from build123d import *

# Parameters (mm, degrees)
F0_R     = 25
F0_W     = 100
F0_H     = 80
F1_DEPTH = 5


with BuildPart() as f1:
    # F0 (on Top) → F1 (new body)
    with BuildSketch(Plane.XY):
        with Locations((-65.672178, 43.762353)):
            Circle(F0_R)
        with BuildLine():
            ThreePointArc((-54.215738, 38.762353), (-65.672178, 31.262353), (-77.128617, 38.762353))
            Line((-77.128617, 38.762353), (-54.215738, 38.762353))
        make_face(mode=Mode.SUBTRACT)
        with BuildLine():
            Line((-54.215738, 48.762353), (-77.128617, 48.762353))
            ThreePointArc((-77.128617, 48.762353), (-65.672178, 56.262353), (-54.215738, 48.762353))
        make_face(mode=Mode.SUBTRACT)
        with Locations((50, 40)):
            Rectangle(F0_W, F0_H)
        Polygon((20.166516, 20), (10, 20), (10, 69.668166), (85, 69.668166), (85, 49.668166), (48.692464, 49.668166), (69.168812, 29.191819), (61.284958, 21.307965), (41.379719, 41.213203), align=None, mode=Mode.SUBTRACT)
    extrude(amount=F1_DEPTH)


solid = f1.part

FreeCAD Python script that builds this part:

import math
import FreeCAD as App
import Part
import Sketcher

V = App.Vector
Q = App.Units.Quantity


def add_polygon(sketch, points):
    """Adds a closed chain of lines whose ends are joined by coincident constraints."""
    first, n = sketch.GeometryCount, len(points)
    for a, b in zip(points, points[1:] + points[:1]):
        sketch.addGeometry(Part.LineSegment(App.Vector(*a, 0), App.Vector(*b, 0)), False)
    for i in range(n):
        sketch.addConstraint(Sketcher.Constraint("Coincident", first + i, 2, first + (i + 1) % n, 1))

doc = App.newDocument("Part")
body = doc.addObject("PartDesign::Body", "Body")
body.AllowCompound = True

# Sketch on XY plane
sketch1 = body.newObject("Sketcher::SketchObject", "Sketch")
sketch1.AttachmentSupport = (doc.getObject("XY_Plane"), [""])
sketch1.MapMode = "FlatFace"
sketch1.addGeometry(Part.Circle(V(-65.672178, 43.762353, 0), V(0, 0, 1), 25), False)  # 0
sketch1.addGeometry(Part.LineSegment(V(-77.128617, 38.762353, 0), V(-54.215738, 38.762353, 0)), False)  # 1
sketch1.addGeometry(Part.ArcOfCircle(Part.Circle(V(-65.672178, 43.762353, 0), V(0, 0, 1), 12.5), math.radians(-156.42182), math.radians(-23.57818)), False)  # 2
sketch1.addGeometry(Part.ArcOfCircle(Part.Circle(V(-65.672178, 43.762353, 0), V(0, 0, 1), 12.5), math.radians(23.57818), math.radians(156.42182)), False)  # 3
sketch1.addGeometry(Part.LineSegment(V(-54.215738, 48.762353, 0), V(-77.128617, 48.762353, 0)), False)  # 4
add_polygon(sketch1, [(0, 80), (0, 0), (100, 0), (100, 80)])  # lines 5-8
add_polygon(sketch1, [(41.379719, 41.213203), (20.166516, 20), (10, 20), (10, 69.668166), (85, 69.668166), (85, 49.668166), (48.692464, 49.668166), (69.168812, 29.191819), (61.284958, 21.307965)])  # lines 9-17
sketch1.addConstraint(Sketcher.Constraint("Coincident", 1, 1, 2, 1))
sketch1.addConstraint(Sketcher.Constraint("Coincident", 2, 2, 1, 2))
sketch1.addConstraint(Sketcher.Constraint("Coincident", 3, 1, 4, 1))
sketch1.addConstraint(Sketcher.Constraint("Coincident", 4, 2, 3, 2))
sketch1.addConstraint(Sketcher.Constraint("Horizontal", 1))
sketch1.addConstraint(Sketcher.Constraint("Horizontal", 4))
sketch1.addConstraint(Sketcher.Constraint("Vertical", 5))
sketch1.addConstraint(Sketcher.Constraint("Horizontal", 6))
sketch1.addConstraint(Sketcher.Constraint("Vertical", 7))
sketch1.addConstraint(Sketcher.Constraint("Horizontal", 8))
sketch1.addConstraint(Sketcher.Constraint("Horizontal", 10))
sketch1.addConstraint(Sketcher.Constraint("Vertical", 11))
sketch1.addConstraint(Sketcher.Constraint("Horizontal", 12))
sketch1.addConstraint(Sketcher.Constraint("Vertical", 13))
sketch1.addConstraint(Sketcher.Constraint("Horizontal", 14))
sketch1.addConstraint(Sketcher.Constraint("Coincident", 5, 2, -1, 1))
sketch1.addConstraint(Sketcher.Constraint("Coincident", 2, 3, 0, 3))
sketch1.addConstraint(Sketcher.Constraint("Coincident", 3, 3, 0, 3))
sketch1.addConstraint(Sketcher.Constraint("Equal", 2, 3))
sketch1.addConstraint(Sketcher.Constraint("Perpendicular", 9, 15))
sketch1.addConstraint(Sketcher.Constraint("Perpendicular", 15, 16))
sketch1.addConstraint(Sketcher.Constraint("Perpendicular", 16, 17))
sketch1.addConstraint(Sketcher.Constraint("Vertical", 2, 2, 3, 1))
sketch1.addConstraint(Sketcher.Constraint("Diameter", 0, 50.0))
sketch1.addConstraint(Sketcher.Constraint("Radius", 2, 12.5))
sketch1.addConstraint(Sketcher.Constraint("DistanceX", 6, 1, 6, 2, 100.0))
sketch1.addConstraint(Sketcher.Constraint("DistanceX", 12, 1, 12, 2, 75.0))
sketch1.addConstraint(Sketcher.Constraint("DistanceY", 5, 2, 5, 1, 80.0))
sketch1.addConstraint(Sketcher.Constraint("DistanceY", 13, 2, 13, 1, 20.0))
sketch1.addConstraint(Sketcher.Constraint("Angle", 9, Q("-135 deg")))
sketch1.addConstraint(Sketcher.Constraint("Distance", 9, 29.999999))
sketch1.addConstraint(Sketcher.Constraint("DistanceY", -1, 1, 9, 2, 20.0))
sketch1.addConstraint(Sketcher.Constraint("DistanceX", -1, 1, 10, 2, 10.0))
sketch1.addConstraint(Sketcher.Constraint("DistanceY", 1, 1, 0, 3, 5.0))
sketch1.addConstraint(Sketcher.Constraint("DistanceY", 16, 2, 14, 2, 28.360201))
sketch1.addConstraint(Sketcher.Constraint("Distance", 15, 28.957928))
sketch1.addConstraint(Sketcher.Constraint("Distance", 17, 28.150258))
sketch1.addConstraint(Sketcher.Constraint("DistanceX", 10, 2, 10, 1, 10.166516))
sketch1.addConstraint(Sketcher.Constraint("DistanceX", 0, 3, -1, 1, 65.672178))
sketch1.addConstraint(Sketcher.Constraint("DistanceY", -1, 1, 0, 3, 43.762353))
pad1 = body.newObject("PartDesign::Pad", "Pad")
pad1.Profile = sketch1
pad1.Length = 5

doc.recompute()
